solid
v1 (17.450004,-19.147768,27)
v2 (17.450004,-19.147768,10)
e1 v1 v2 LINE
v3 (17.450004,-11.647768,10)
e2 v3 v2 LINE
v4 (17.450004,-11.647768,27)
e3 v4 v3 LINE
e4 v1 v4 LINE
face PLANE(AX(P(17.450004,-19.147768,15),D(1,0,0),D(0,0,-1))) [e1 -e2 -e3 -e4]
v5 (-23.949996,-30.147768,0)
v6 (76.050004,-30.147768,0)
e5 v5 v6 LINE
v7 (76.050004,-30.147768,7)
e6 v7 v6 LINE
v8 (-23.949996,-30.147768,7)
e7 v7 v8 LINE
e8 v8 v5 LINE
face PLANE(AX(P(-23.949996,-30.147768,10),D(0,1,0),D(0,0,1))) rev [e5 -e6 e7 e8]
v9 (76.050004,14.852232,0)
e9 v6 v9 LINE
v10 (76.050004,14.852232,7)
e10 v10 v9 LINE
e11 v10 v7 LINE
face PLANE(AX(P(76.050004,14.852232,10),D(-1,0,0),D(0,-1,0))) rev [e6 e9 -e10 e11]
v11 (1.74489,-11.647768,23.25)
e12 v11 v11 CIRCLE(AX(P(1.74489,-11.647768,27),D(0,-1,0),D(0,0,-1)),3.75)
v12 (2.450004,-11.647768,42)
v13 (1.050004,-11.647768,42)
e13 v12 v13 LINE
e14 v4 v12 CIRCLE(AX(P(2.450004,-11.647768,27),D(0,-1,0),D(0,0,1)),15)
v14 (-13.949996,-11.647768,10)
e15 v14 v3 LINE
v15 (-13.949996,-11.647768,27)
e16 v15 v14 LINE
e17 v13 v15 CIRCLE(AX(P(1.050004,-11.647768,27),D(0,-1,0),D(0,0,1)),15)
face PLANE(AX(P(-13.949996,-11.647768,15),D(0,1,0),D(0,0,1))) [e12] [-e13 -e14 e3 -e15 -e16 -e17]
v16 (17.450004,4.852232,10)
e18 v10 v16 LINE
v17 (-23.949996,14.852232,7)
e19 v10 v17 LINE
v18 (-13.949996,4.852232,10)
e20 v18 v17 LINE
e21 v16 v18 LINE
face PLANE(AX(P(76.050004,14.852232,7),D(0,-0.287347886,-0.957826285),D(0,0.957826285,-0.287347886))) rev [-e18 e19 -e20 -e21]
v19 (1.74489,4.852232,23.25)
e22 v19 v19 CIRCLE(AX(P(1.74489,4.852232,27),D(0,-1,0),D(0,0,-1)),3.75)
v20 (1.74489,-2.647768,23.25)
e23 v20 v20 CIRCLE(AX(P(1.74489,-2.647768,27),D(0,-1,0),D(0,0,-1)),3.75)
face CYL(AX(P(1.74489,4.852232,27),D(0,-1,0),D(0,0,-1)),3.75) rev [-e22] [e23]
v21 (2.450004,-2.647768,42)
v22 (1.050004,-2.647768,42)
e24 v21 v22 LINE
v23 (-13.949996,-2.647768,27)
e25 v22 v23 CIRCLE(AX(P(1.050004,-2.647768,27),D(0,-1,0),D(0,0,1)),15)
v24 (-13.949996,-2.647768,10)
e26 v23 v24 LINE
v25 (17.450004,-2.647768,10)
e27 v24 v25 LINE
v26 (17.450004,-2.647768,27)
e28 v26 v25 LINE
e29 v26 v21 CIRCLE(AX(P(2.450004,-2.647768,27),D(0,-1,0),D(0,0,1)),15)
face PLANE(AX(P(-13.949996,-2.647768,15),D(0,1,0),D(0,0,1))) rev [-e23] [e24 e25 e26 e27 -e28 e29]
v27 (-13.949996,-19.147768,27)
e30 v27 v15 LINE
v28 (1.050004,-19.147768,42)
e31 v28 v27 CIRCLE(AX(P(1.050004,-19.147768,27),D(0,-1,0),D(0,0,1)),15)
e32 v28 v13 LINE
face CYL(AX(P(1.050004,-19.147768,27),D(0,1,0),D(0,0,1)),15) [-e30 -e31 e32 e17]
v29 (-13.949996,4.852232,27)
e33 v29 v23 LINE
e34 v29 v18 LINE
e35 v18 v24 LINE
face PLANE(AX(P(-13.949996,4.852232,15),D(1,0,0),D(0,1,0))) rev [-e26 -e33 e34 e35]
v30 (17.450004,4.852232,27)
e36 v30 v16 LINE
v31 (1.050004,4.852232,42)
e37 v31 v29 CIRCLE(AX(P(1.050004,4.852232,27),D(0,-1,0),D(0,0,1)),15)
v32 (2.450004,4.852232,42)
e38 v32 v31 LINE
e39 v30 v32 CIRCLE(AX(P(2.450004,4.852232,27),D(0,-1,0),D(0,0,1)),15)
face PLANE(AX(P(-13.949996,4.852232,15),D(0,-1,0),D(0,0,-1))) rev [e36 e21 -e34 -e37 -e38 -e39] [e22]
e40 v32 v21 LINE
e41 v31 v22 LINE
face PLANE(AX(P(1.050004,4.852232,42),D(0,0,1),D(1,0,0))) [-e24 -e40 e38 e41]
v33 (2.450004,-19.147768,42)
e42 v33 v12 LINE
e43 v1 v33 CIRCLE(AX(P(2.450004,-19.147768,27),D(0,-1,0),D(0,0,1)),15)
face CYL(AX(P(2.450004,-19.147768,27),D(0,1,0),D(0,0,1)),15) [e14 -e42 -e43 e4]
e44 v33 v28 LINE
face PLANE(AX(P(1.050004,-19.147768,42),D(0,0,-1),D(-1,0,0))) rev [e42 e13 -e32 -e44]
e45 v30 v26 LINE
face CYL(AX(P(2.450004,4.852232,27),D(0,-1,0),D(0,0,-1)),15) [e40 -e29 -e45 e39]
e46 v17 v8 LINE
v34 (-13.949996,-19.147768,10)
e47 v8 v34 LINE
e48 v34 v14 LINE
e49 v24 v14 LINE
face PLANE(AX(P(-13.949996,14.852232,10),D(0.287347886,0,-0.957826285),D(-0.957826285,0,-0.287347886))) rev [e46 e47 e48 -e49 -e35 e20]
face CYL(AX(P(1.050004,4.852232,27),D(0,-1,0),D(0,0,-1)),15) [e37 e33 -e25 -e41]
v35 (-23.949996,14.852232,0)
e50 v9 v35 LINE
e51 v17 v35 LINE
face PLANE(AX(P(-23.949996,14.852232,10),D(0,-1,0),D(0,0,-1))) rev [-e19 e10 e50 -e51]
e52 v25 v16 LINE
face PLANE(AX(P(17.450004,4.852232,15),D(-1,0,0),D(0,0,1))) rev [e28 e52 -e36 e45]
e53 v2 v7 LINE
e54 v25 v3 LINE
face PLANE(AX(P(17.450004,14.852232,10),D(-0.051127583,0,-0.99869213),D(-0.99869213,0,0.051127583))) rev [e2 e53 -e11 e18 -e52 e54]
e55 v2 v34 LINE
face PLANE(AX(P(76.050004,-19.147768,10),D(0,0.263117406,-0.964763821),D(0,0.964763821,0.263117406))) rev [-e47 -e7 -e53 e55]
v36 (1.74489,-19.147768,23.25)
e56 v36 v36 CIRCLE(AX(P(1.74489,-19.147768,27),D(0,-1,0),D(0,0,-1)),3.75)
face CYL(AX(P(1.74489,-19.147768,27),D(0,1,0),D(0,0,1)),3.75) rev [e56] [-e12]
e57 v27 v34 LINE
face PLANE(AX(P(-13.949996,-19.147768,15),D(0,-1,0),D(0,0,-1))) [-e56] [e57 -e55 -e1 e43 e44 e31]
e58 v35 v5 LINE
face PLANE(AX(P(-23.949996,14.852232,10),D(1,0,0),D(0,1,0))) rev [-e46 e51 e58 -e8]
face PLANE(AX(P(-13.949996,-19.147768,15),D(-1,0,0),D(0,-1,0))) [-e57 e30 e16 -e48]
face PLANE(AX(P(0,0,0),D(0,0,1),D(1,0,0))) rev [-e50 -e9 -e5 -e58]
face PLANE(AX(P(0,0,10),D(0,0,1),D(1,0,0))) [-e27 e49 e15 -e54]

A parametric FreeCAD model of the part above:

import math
import FreeCAD as App
import Part
import Sketcher
Q = App.Units.Quantity

doc = App.newDocument("Part")
body = doc.addObject("PartDesign::Body", "Body")

# Sketch on XY plane
sketch1 = body.newObject("Sketcher::SketchObject", "Sketch")
sketch1.AttachmentSupport = (doc.getObject("XY_Plane"), [""])
sketch1.MapMode = "FlatFace"
sketch1.addGeometry(Part.LineSegment(App.Vector(-24, 15, 0), App.Vector(-24, -30, 0)), False)
sketch1.addGeometry(Part.LineSegment(App.Vector(-24, -30, 0), App.Vector(76, -30, 0)), False)
sketch1.addGeometry(Part.LineSegment(App.Vector(76, -30, 0), App.Vector(76, 15, 0)), False)
sketch1.addGeometry(Part.LineSegment(App.Vector(76, 15, 0), App.Vector(-24, 15, 0)), False)
sketch1.addConstraint(Sketcher.Constraint("Coincident", 0, 2, 1, 1))
sketch1.addConstraint(Sketcher.Constraint("Coincident", 1, 2, 2, 1))
sketch1.addConstraint(Sketcher.Constraint("Coincident", 2, 2, 3, 1))
sketch1.addConstraint(Sketcher.Constraint("Coincident", 3, 2, 0, 1))
sketch1.addConstraint(Sketcher.Constraint("Vertical", 0))
sketch1.addConstraint(Sketcher.Constraint("Horizontal", 1))
sketch1.addConstraint(Sketcher.Constraint("Vertical", 2))
sketch1.addConstraint(Sketcher.Constraint("Horizontal", 3))
sketch1.addConstraint(Sketcher.Constraint("DistanceX", 1, 1, 1, 2, Q("100 mm")))
sketch1.addConstraint(Sketcher.Constraint("DistanceY", 0, 2, 0, 1, Q("45 mm")))
sketch1.addConstraint(Sketcher.Constraint("DistanceY", 0, 2, -1, 1, Q("30.147768 mm")))
sketch1.addConstraint(Sketcher.Constraint("DistanceX", 0, 2, -1, 1, Q("23.949996 mm")))
pad1 = body.newObject("PartDesign::Pad", "Pad")
pad1.Profile = sketch1
pad1.Length = 10

# Sketch on XY plane
sketch2 = body.newObject("Sketcher::SketchObject", "Sketch001")
sketch2.AttachmentSupport = (doc.getObject("XY_Plane"), [""])
sketch2.MapMode = "FlatFace"
sketch2.AttachmentOffset = App.Placement(App.Vector(0, 0, 10), App.Rotation())
sketch2.addGeometry(Part.LineSegment(App.Vector(-14, 5, 0), App.Vector(-14, -3, 0)), False)
sketch2.addGeometry(Part.LineSegment(App.Vector(-14, -3, 0), App.Vector(17, -3, 0)), False)
sketch2.addGeometry(Part.LineSegment(App.Vector(17, -3, 0), App.Vector(17, 5, 0)), False)
sketch2.addGeometry(Part.LineSegment(App.Vector(17, 5, 0), App.Vector(-14, 5, 0)), False)
sketch2.addConstraint(Sketcher.Constraint("Coincident", 0, 2, 1, 1))
sketch2.addConstraint(Sketcher.Constraint("Coincident", 1, 2, 2, 1))
sketch2.addConstraint(Sketcher.Constraint("Coincident", 2, 2, 3, 1))
sketch2.addConstraint(Sketcher.Constraint("Coincident", 3, 2, 0, 1))
sketch2.addConstraint(Sketcher.Constraint("Vertical", 0))
sketch2.addConstraint(Sketcher.Constraint("Horizontal", 1))
sketch2.addConstraint(Sketcher.Constraint("Vertical", 2))
sketch2.addConstraint(Sketcher.Constraint("Horizontal", 3))
sketch2.addConstraint(Sketcher.Constraint("DistanceX", 1, 1, 1, 2, Q("31.4 mm")))
sketch2.addConstraint(Sketcher.Constraint("DistanceY", 0, 2, 0, 1, Q("7.5 mm")))
sketch2.addConstraint(Sketcher.Constraint("DistanceY", 0, 2, -1, 1, Q("2.647768 mm")))
sketch2.addConstraint(Sketcher.Constraint("DistanceX", 0, 2, -1, 1, Q("13.949996 mm")))
pad2 = body.newObject("PartDesign::Pad", "Pad001")
pad2.Profile = sketch2
pad2.Length = 5

# Sketch on XZ plane
sketch3 = body.newObject("Sketcher::SketchObject", "Sketch002")
sketch3.AttachmentSupport = (doc.getObject("XZ_Plane"), [""])
sketch3.MapMode = "FlatFace"
sketch3.AttachmentOffset = App.Placement(App.Vector(0, 0, 2.647768), App.Rotation())
sketch3.addGeometry(Part.LineSegment(App.Vector(-13.9, 27, 0), App.Vector(-13.9, 15, 0)), False)
sketch3.addGeometry(Part.LineSegment(App.Vector(-13.9, 15, 0), App.Vector(17.5, 15, 0)), False)
sketch3.addGeometry(Part.LineSegment(App.Vector(17.5, 15, 0), App.Vector(17.5, 27, 0)), False)
sketch3.addGeometry(Part.ArcOfCircle(Part.Circle(App.Vector(2.5, 27, 0), App.Vector(0, 0, 1), 15), math.radians(0), math.radians(90)), False)
sketch3.addGeometry(Part.LineSegment(App.Vector(2.5, 42, 0), App.Vector(1.1, 42, 0)), False)
sketch3.addGeometry(Part.ArcOfCircle(Part.Circle(App.Vector(1.1, 27, 0), App.Vector(0, 0, 1), 15), math.radians(90), math.radians(180)), False)
sketch3.addGeometry(Part.Circle(App.Vector(1.7, 27, 0), App.Vector(0, 0, 1), 3.8), False)
sketch3.addConstraint(Sketcher.Constraint("Coincident", 0, 2, 1, 1))
sketch3.addConstraint(Sketcher.Constraint("Coincident", 1, 2, 2, 1))
sketch3.addConstraint(Sketcher.Constraint("Tangent", 2, 2, 3, 1))
sketch3.addConstraint(Sketcher.Constraint("Tangent", 3, 2, 4, 1))
sketch3.addConstraint(Sketcher.Constraint("Tangent", 4, 2, 5, 1))
sketch3.addConstraint(Sketcher.Constraint("Tangent", 5, 2, 0, 1))
sketch3.addConstraint(Sketcher.Constraint("Vertical", 0))
sketch3.addConstraint(Sketcher.Constraint("Horizontal", 1))
sketch3.addConstraint(Sketcher.Constraint("Vertical", 2))
sketch3.addConstraint(Sketcher.Constraint("Horizontal", 4))
sketch3.addConstraint(Sketcher.Constraint("Equal", 3, 5))
sketch3.addConstraint(Sketcher.Constraint("Horizontal", 5, 3, 6, 3))
sketch3.addConstraint(Sketcher.Constraint("Radius", 3, Q("15 mm")))
sketch3.addConstraint(Sketcher.Constraint("Diameter", 6, Q("7.5 mm")))
sketch3.addConstraint(Sketcher.Constraint("DistanceY", 0, 2, 0, 1, Q("12 mm")))
sketch3.addConstraint(Sketcher.Constraint("DistanceX", 1, 1, 1, 2, Q("31.4 mm")))
sketch3.addConstraint(Sketcher.Constraint("DistanceY", -1, 1, 3, 3, Q("27 mm")))
sketch3.addConstraint(Sketcher.Constraint("DistanceX", -1, 1, 6, 3, Q("1.74489 mm")))
sketch3.addConstraint(Sketcher.Constraint("DistanceX", -1, 1, 3, 3, Q("2.450004 mm")))
pad3 = body.newObject("PartDesign::Pad", "Pad002")
pad3.Profile = sketch3
pad3.Length = 7.5
pad3.Reversed = True
doc.recompute()

datumplane = body.newObject("PartDesign::Plane", "DatumPlane")
datumplane.AttachmentSupport = (doc.getObject("XZ_Plane"), [""])
datumplane.MapMode = "FlatFace"
datumplane.AttachmentOffset = App.Placement(App.Vector(0, 0, 7.147768), App.Rotation())
mirrored = body.newObject("PartDesign::Mirrored", "Mirrored")
mirrored.Originals = [pad2, pad3]
mirrored.MirrorPlane = (datumplane, [""])
body.Tip = mirrored

# Sketch on XZ plane
sketch4 = body.newObject("Sketcher::SketchObject", "Sketch003")
sketch4.AttachmentSupport = (doc.getObject("XZ_Plane"), [""])
sketch4.MapMode = "FlatFace"
sketch4.AttachmentOffset = App.Placement(App.Vector(0, 0, 30.147768), App.Rotation())
sketch4.addGeometry(Part.LineSegment(App.Vector(-23.9, 7, 0), App.Vector(-13.9, 10, 0)), False)
sketch4.addGeometry(Part.LineSegment(App.Vector(-13.9, 10, 0), App.Vector(-23.9, 10, 0)), False)
sketch4.addGeometry(Part.LineSegment(App.Vector(-23.9, 10, 0), App.Vector(-23.9, 7, 0)), False)
sketch4.addGeometry(Part.LineSegment(App.Vector(17.5, 10, 0), App.Vector(76.1, 7, 0)), False)
sketch4.addGeometry(Part.LineSegment(App.Vector(76.1, 7, 0), App.Vector(76.1, 10, 0)), False)
sketch4.addGeometry(Part.LineSegment(App.Vector(76.1, 10, 0), App.Vector(17.5, 10, 0)), False)
sketch4.addConstraint(Sketcher.Constraint("Coincident", 0, 2, 1, 1))
sketch4.addConstraint(Sketcher.Constraint("Coincident", 1, 2, 2, 1))
sketch4.addConstraint(Sketcher.Constraint("Coincident", 2, 2, 0, 1))
sketch4.addConstraint(Sketcher.Constraint("Coincident", 3, 2, 4, 1))
sketch4.addConstraint(Sketcher.Constraint("Coincident", 4, 2, 5, 1))
sketch4.addConstraint(Sketcher.Constraint("Coincident", 5, 2, 3, 1))
sketch4.addConstraint(Sketcher.Constraint("Horizontal", 1))
sketch4.addConstraint(Sketcher.Constraint("Vertical", 2))
sketch4.addConstraint(Sketcher.Constraint("Vertical", 4))
sketch4.addConstraint(Sketcher.Constraint("Horizontal", 5))
sketch4.addConstraint(Sketcher.Constraint("Horizontal", 2, 2, 3, 2))
sketch4.addConstraint(Sketcher.Constraint("Horizontal", 1, 2, 4, 2))
sketch4.addConstraint(Sketcher.Constraint("DistanceX", 1, 2, 1, 1, Q("10 mm")))
sketch4.addConstraint(Sketcher.Constraint("DistanceY", 2, 2, 2, 1, Q("3 mm")))
sketch4.addConstraint(Sketcher.Constraint("DistanceX", 5, 2, 5, 1, Q("58.6 mm")))
sketch4.addConstraint(Sketcher.Constraint("DistanceY", -1, 1, 0, 2, Q("10 mm")))
sketch4.addConstraint(Sketcher.Constraint("DistanceX", 0, 2, 3, 2, Q("90 mm")))
sketch4.addConstraint(Sketcher.Constraint("DistanceX", 0, 2, -1, 1, Q("13.949996 mm")))
pocket1 = body.newObject("PartDesign::Pocket", "Pocket")
pocket1.Profile = sketch4
pocket1.Length = 45

# Sketch on YZ plane
sketch5 = body.newObject("Sketcher::SketchObject", "Sketch004")
sketch5.AttachmentSupport = (doc.getObject("YZ_Plane"), [""])
sketch5.MapMode = "FlatFace"
sketch5.AttachmentOffset = App.Placement(App.Vector(0, 0, -23.949996), App.Rotation())
sketch5.addGeometry(Part.LineSegment(App.Vector(14.9, 7, 0), App.Vector(4.9, 10, 0)), False)
sketch5.addGeometry(Part.LineSegment(App.Vector(4.9, 10, 0), App.Vector(14.9, 10, 0)), False)
sketch5.addGeometry(Part.LineSegment(App.Vector(14.9, 10, 0), App.Vector(14.9, 7, 0)), False)
sketch5.addGeometry(Part.LineSegment(App.Vector(-19.1, 10, 0), App.Vector(-30.1, 7, 0)), False)
sketch5.addGeometry(Part.LineSegment(App.Vector(-30.1, 7, 0), App.Vector(-30.1, 10, 0)), False)
sketch5.addGeometry(Part.LineSegment(App.Vector(-30.1, 10, 0), App.Vector(-19.1, 10, 0)), False)
sketch5.addConstraint(Sketcher.Constraint("Coincident", 0, 2, 1, 1))
sketch5.addConstraint(Sketcher.Constraint("Coincident", 1, 2, 2, 1))
sketch5.addConstraint(Sketcher.Constraint("Coincident", 2, 2, 0, 1))
sketch5.addConstraint(Sketcher.Constraint("Coincident", 3, 2, 4, 1))
sketch5.addConstraint(Sketcher.Constraint("Coincident", 4, 2, 5, 1))
sketch5.addConstraint(Sketcher.Constraint("Coincident", 5, 2, 3, 1))
sketch5.addConstraint(Sketcher.Constraint("Horizontal", 1))
sketch5.addConstraint(Sketcher.Constraint("Vertical", 2))
sketch5.addConstraint(Sketcher.Constraint("Vertical", 4))
sketch5.addConstraint(Sketcher.Constraint("Horizontal", 5))
sketch5.addConstraint(Sketcher.Constraint("Horizontal", 2, 2, 3, 2))
sketch5.addConstraint(Sketcher.Constraint("Horizontal", 1, 2, 4, 2))
sketch5.addConstraint(Sketcher.Constraint("DistanceX", 1, 1, 1, 2, Q("10 mm")))
sketch5.addConstraint(Sketcher.Constraint("DistanceX", 5, 1, 5, 2, Q("11 mm")))
sketch5.addConstraint(Sketcher.Constraint("DistanceY", 2, 2, 2, 1, Q("3 mm")))
sketch5.addConstraint(Sketcher.Constraint("DistanceY", -1, 1, 0, 2, Q("10 mm")))
sketch5.addConstraint(Sketcher.Constraint("DistanceX", 3, 2, 0, 2, Q("35 mm")))
sketch5.addConstraint(Sketcher.Constraint("DistanceX", -1, 1, 0, 2, Q("4.852232 mm")))
pocket2 = body.newObject("PartDesign::Pocket", "Pocket001")
pocket2.Profile = sketch5
pocket2.Length = 100
pocket2.Reversed = True

doc.recompute()
